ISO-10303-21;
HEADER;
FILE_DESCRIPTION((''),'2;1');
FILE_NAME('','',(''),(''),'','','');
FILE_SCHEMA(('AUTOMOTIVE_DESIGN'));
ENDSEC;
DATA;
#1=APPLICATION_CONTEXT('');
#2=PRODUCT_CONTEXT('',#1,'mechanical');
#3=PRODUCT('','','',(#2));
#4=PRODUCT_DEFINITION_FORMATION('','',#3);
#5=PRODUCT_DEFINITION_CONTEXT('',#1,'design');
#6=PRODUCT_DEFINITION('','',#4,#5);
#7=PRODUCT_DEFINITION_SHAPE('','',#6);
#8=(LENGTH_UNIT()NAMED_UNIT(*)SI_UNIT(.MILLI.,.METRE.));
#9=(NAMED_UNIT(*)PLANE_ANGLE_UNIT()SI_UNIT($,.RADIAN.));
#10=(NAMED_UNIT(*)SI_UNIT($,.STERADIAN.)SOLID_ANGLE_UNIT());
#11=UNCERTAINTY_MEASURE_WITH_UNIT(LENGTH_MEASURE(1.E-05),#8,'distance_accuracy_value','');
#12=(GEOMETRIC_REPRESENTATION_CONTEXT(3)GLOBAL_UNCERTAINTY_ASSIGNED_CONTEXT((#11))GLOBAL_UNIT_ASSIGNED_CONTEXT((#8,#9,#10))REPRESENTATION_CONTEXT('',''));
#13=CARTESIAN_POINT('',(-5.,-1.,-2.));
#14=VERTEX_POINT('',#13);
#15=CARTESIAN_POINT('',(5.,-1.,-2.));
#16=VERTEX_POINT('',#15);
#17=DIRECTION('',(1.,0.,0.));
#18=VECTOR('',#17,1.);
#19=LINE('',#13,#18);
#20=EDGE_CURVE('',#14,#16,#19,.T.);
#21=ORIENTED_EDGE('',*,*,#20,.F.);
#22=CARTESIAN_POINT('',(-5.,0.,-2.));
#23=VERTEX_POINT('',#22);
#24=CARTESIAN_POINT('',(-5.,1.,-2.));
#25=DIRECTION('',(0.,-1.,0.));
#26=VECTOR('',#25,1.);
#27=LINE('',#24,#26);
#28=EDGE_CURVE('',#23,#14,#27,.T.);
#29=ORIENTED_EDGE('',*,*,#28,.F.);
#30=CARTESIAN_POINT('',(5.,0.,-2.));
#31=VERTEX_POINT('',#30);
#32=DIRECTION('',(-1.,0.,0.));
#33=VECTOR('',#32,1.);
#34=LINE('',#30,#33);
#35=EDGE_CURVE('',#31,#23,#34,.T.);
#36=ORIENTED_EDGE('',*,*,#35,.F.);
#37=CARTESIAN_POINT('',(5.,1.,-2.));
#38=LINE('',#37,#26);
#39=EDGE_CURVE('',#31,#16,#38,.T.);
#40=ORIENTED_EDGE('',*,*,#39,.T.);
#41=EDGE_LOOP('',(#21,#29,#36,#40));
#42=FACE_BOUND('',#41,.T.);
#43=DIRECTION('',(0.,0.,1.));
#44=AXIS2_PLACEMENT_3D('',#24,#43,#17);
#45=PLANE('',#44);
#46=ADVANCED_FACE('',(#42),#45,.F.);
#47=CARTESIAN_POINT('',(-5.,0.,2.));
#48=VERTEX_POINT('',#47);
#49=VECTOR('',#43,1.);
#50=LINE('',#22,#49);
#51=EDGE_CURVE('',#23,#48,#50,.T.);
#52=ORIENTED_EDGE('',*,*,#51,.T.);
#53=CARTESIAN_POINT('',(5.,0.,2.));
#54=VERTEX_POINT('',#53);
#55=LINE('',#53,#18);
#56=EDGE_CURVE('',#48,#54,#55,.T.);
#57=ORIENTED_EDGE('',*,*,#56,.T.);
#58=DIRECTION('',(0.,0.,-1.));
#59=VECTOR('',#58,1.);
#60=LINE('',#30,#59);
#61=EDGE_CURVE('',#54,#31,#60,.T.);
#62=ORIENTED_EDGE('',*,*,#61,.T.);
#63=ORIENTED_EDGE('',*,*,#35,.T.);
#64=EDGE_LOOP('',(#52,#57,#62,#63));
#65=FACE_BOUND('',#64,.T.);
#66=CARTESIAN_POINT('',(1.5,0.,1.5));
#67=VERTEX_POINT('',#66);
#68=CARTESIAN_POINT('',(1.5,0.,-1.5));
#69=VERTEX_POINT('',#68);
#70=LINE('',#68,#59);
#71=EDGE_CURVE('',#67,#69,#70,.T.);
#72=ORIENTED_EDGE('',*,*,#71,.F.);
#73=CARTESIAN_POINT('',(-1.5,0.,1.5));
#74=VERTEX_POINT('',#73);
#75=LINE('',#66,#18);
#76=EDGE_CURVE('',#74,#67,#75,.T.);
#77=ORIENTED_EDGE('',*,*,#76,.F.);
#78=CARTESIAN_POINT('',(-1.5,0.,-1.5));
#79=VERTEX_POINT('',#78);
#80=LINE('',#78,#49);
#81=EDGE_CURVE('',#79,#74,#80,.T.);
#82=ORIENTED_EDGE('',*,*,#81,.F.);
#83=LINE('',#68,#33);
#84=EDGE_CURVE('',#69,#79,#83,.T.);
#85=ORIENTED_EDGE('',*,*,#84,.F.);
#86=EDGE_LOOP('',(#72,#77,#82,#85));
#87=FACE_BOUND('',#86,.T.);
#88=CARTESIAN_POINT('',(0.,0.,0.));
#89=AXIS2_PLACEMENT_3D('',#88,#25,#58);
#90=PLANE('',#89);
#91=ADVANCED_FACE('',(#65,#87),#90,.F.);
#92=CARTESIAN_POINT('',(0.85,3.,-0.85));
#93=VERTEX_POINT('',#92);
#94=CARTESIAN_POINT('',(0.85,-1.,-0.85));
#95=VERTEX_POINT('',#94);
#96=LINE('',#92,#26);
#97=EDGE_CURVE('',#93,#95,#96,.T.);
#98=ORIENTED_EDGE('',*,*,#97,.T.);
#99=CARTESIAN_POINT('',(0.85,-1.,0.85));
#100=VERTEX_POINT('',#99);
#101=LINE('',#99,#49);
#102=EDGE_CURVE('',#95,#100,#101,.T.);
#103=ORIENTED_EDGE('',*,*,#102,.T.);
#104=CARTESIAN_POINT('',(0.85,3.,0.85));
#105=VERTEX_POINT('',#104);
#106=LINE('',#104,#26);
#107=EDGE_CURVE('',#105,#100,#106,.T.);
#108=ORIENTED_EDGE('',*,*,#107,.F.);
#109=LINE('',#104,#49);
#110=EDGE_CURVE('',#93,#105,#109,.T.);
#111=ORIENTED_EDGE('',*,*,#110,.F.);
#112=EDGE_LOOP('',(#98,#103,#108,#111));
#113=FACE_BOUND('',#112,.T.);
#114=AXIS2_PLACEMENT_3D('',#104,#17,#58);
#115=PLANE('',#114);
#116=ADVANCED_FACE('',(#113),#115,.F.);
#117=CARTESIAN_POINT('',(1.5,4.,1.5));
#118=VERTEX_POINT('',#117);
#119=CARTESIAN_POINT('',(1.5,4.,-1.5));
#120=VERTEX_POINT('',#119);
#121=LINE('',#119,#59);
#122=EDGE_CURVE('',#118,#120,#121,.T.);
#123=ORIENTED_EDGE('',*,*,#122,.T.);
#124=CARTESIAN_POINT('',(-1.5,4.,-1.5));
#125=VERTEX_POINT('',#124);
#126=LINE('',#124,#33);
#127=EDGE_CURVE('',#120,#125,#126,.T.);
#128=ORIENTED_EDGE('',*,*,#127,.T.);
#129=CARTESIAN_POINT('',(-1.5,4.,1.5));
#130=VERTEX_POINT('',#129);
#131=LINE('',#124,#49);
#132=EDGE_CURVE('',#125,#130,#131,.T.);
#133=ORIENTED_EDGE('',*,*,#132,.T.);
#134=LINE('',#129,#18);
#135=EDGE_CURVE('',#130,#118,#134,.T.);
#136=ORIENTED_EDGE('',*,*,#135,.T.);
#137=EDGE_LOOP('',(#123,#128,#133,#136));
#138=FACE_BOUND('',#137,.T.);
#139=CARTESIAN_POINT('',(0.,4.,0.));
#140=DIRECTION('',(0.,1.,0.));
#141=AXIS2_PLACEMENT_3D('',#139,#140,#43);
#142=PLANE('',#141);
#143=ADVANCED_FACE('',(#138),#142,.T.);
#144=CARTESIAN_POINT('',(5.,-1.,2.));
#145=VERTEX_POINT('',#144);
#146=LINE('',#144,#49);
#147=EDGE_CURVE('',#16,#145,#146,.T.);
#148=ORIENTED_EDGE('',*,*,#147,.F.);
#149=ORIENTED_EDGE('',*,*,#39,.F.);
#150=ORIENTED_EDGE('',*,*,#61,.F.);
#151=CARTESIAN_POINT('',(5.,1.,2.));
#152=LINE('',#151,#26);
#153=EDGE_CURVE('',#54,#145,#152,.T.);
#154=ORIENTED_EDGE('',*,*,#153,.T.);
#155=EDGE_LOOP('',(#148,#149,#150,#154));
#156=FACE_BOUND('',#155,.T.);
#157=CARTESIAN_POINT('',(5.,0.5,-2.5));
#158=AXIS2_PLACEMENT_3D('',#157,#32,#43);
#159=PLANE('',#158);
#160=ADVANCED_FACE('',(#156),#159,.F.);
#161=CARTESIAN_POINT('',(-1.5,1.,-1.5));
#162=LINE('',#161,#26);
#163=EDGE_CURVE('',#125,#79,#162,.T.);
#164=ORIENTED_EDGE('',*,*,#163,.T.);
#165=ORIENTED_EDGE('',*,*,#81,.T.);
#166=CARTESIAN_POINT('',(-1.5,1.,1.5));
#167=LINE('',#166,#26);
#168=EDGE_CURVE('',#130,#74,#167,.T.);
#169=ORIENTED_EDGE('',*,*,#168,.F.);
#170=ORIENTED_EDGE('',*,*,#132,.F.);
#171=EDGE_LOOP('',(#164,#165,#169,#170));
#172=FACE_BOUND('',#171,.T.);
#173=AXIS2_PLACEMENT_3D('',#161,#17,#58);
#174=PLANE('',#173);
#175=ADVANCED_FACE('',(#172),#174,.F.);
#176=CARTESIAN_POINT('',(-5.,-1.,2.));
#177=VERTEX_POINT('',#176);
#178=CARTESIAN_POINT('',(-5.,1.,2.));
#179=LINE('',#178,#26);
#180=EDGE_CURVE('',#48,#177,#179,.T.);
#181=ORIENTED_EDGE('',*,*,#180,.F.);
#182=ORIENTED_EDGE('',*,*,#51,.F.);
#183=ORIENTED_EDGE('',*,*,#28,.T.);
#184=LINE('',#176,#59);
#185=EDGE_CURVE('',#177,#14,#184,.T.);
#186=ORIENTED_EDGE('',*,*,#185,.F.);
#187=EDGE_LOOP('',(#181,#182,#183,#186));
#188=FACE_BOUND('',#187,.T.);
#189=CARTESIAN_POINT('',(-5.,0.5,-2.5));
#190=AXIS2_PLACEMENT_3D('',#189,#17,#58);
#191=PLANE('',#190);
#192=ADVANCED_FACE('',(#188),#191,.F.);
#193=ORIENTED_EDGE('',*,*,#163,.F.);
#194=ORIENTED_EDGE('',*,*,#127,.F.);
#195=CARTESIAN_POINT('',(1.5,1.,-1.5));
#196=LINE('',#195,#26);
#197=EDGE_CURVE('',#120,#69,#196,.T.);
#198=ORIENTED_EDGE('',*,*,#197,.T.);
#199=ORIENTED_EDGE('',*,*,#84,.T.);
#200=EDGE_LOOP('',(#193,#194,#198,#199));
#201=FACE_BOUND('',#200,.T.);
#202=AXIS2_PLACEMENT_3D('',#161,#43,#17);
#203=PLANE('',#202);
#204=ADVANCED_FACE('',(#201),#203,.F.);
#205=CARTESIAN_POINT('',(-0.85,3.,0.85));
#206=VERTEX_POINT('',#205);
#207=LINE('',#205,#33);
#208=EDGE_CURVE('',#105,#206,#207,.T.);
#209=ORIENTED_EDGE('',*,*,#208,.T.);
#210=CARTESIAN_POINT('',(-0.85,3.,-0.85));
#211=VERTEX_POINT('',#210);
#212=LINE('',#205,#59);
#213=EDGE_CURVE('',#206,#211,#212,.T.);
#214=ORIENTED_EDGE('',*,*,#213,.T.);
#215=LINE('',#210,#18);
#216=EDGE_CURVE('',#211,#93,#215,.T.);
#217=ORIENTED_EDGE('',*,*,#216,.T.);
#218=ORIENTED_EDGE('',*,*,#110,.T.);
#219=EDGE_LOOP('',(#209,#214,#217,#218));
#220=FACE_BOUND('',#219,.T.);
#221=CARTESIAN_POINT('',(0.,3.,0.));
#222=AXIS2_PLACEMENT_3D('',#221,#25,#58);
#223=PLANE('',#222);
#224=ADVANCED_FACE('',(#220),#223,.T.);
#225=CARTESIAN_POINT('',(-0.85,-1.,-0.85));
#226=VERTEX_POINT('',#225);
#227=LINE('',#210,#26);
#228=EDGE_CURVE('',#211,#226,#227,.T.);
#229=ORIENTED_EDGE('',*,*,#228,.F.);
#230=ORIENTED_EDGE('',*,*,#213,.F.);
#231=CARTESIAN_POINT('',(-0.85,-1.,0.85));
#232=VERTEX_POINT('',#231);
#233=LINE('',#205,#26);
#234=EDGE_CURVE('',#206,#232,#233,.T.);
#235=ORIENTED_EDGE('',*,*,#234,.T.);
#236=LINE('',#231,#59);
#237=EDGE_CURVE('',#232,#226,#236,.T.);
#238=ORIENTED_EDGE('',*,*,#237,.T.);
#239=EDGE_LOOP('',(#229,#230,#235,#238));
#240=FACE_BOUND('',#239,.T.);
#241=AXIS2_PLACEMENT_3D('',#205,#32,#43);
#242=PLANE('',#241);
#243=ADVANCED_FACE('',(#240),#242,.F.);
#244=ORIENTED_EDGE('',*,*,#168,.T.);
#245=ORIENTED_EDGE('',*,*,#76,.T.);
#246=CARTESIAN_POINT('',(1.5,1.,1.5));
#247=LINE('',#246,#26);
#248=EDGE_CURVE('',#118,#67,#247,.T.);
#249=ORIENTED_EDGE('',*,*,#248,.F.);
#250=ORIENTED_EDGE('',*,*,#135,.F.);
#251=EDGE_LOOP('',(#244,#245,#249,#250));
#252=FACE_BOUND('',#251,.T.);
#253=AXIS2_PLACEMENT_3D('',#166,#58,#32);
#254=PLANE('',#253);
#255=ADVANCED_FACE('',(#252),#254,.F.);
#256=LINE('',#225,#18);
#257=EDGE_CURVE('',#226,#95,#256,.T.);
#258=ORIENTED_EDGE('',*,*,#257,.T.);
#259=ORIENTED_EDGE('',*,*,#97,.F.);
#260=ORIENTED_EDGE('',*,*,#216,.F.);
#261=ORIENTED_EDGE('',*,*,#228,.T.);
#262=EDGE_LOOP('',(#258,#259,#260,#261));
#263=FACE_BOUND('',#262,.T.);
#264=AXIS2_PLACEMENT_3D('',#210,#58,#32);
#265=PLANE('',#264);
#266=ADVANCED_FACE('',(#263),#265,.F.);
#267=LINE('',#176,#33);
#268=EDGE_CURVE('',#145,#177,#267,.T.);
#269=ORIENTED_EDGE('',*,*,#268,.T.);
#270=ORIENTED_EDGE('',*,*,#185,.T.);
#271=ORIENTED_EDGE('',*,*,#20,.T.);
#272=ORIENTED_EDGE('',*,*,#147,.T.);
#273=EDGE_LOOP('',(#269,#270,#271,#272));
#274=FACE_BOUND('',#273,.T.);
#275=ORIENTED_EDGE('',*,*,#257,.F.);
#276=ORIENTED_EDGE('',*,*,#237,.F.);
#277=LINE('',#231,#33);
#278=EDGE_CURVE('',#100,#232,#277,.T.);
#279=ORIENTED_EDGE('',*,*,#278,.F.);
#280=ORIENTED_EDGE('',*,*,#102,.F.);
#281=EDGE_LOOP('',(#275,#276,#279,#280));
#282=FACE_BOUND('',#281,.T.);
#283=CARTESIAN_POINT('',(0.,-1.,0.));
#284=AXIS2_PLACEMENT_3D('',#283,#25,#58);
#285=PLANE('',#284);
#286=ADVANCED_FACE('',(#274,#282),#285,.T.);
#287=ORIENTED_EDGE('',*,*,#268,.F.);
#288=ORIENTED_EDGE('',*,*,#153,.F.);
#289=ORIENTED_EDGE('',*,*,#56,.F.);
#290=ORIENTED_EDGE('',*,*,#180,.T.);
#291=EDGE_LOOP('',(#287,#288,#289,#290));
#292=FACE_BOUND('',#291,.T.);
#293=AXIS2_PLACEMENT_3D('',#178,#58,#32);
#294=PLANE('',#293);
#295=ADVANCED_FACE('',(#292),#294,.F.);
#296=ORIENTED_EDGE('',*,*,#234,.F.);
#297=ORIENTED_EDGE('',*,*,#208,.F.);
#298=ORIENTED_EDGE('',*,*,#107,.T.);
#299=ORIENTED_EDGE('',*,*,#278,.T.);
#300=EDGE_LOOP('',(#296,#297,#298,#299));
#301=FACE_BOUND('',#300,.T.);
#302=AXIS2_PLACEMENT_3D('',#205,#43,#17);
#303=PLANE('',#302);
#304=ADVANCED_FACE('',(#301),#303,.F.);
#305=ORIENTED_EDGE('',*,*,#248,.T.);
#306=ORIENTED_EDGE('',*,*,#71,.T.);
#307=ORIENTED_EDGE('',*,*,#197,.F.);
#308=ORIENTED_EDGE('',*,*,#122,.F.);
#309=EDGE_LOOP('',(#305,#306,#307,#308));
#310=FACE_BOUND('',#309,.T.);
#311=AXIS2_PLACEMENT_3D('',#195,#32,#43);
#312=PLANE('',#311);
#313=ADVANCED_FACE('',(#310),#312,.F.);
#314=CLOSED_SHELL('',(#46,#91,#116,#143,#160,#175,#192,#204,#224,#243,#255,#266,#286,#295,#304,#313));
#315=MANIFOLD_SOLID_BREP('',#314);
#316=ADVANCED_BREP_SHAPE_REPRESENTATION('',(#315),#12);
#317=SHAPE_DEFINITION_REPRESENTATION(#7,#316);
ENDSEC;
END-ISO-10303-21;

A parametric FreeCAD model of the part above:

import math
import FreeCAD as App
import Part
import Sketcher

V = App.Vector
Q = App.Units.Quantity

doc = App.newDocument("Part")
body = doc.addObject("PartDesign::Body", "Body")

sketch1 = body.newObject("Sketcher::SketchObject", "Sketch")
sketch1.AttachmentSupport = (doc.getObject("XZ_Plane"), [""])
sketch1.MapMode = "FlatFace"
sketch1.addGeometry([
    Part.LineSegment(V(-5, -2, 0), V(-5, 2, 0)),
    Part.LineSegment(V(-5, 2, 0), V(5, 2, 0)),
    Part.LineSegment(V(5, 2, 0), V(5, -2, 0)),
    Part.LineSegment(V(5, -2, 0), V(-5, -2, 0)),
], False)
sketch1.addConstraint([
    Sketcher.Constraint("Coincident", 0, 2, 1, 1),
    Sketcher.Constraint("Coincident", 1, 2, 2, 1),
    Sketcher.Constraint("Coincident", 2, 2, 3, 1),
    Sketcher.Constraint("Coincident", 3, 2, 0, 1),
    Sketcher.Constraint("Vertical", 0),
    Sketcher.Constraint("Horizontal", 1),
    Sketcher.Constraint("Vertical", 2),
    Sketcher.Constraint("Horizontal", 3),
    Sketcher.Constraint("Symmetric", 0, 2, 2, 2, -1, 1),
    Sketcher.Constraint("DistanceX", 1, 1, 1, 2, Q("10 mm")),
    Sketcher.Constraint("DistanceY", 0, 1, 0, 2, Q("5 mm")),
])
pad1 = body.newObject("PartDesign::Pad", "Pad")
pad1.Profile = sketch1
pad1.Length = 0.5
pad1.Reversed = True

sketch2 = body.newObject("Sketcher::SketchObject", "Sketch001")
sketch2.AttachmentSupport = (doc.getObject("XZ_Plane"), [""])
sketch2.MapMode = "FlatFace"
sketch2.AttachmentOffset = App.Placement(V(0, 0, -0.5), App.Rotation())
sketch2.addGeometry([
    Part.LineSegment(V(-1.5, -1.5, 0), V(-1.5, 1.5, 0)),
    Part.LineSegment(V(-1.5, 1.5, 0), V(1.5, 1.5, 0)),
    Part.LineSegment(V(1.5, 1.5, 0), V(1.5, -1.5, 0)),
    Part.LineSegment(V(1.5, -1.5, 0), V(-1.5, -1.5, 0)),
], False)
sketch2.addConstraint([
    Sketcher.Constraint("Coincident", 0, 2, 1, 1),
    Sketcher.Constraint("Coincident", 1, 2, 2, 1),
    Sketcher.Constraint("Coincident", 2, 2, 3, 1),
    Sketcher.Constraint("Coincident", 3, 2, 0, 1),
    Sketcher.Constraint("Vertical", 0),
    Sketcher.Constraint("Horizontal", 1),
    Sketcher.Constraint("Vertical", 2),
    Sketcher.Constraint("Horizontal", 3),
    Sketcher.Constraint("Symmetric", 0, 2, 2, 2, -1, 1),
    Sketcher.Constraint("Equal", 3, 0),
    Sketcher.Constraint("DistanceX", 1, 1, 1, 2, Q("3 mm")),
])
pad2 = body.newObject("PartDesign::Pad", "Pad001")
pad2.Profile = sketch2
pad2.Length = 0.5
pad2.Reversed = True

sketch3 = body.newObject("Sketcher::SketchObject", "Sketch002")
sketch3.AttachmentSupport = (doc.getObject("XZ_Plane"), [""])
sketch3.MapMode = "FlatFace"
sketch3.AttachmentOffset = App.Placement(V(0, 0, -1), App.Rotation())
sketch3.addGeometry([
    Part.LineSegment(V(-5, -2, 0), V(-5, 2, 0)),
    Part.LineSegment(V(-5, 2, 0), V(5, 2, 0)),
    Part.LineSegment(V(5, 2, 0), V(5, -2, 0)),
    Part.LineSegment(V(5, -2, 0), V(-5, -2, 0)),
], False)
sketch3.addConstraint([
    Sketcher.Constraint("Coincident", 0, 2, 1, 1),
    Sketcher.Constraint("Coincident", 1, 2, 2, 1),
    Sketcher.Constraint("Coincident", 2, 2, 3, 1),
    Sketcher.Constraint("Coincident", 3, 2, 0, 1),
    Sketcher.Constraint("Vertical", 0),
    Sketcher.Constraint("Horizontal", 1),
    Sketcher.Constraint("Vertical", 2),
    Sketcher.Constraint("Horizontal", 3),
    Sketcher.Constraint("Symmetric", 0, 2, 2, 2, -1, 1),
    Sketcher.Constraint("DistanceX", 1, 1, 1, 2, Q("10 mm")),
    Sketcher.Constraint("DistanceY", 0, 1, 0, 2, Q("5 mm")),
])
pad3 = body.newObject("PartDesign::Pad", "Pad002")
pad3.Profile = sketch3
pad3.Length = 0.5
pad3.Reversed = True

sketch4 = body.newObject("Sketcher::SketchObject", "Sketch003")
sketch4.AttachmentSupport = (doc.getObject("XY_Plane"), [""])
sketch4.MapMode = "FlatFace"
sketch4.AttachmentOffset = App.Placement(V(0, 0, 2.5), App.Rotation())
sketch4.addGeometry([
    Part.LineSegment(V(-5, 2, 0), V(5, 2, 0)),
    Part.ArcOfCircle(Part.Circle(V(0, -10, 0), V(0, 0, 1), 13), math.radians(67), math.radians(113)),
], False)
sketch4.addConstraint([
    Sketcher.Constraint("Coincident", 0, 1, 1, 2),
    Sketcher.Constraint("Coincident", 1, 1, 0, 2),
    Sketcher.Constraint("Horizontal", 0),
    Sketcher.Constraint("PointOnObject", 1, 3, -2),
    Sketcher.Constraint("Radius", 1, Q("13 mm")),
    Sketcher.Constraint("DistanceX", 0, 1, 0, 2, Q("10 mm")),
    Sketcher.Constraint("DistanceY", 1, 3, -1, 1, Q("10.5 mm")),
])
pad4 = body.newObject("PartDesign::Pad", "Pad003")
pad4.Profile = sketch4
pad4.Length = 5
pad4.Reversed = True

sketch5 = body.newObject("Sketcher::SketchObject", "Sketch004")
sketch5.AttachmentSupport = (doc.getObject("XY_Plane"), [""])
sketch5.MapMode = "FlatFace"
sketch5.AttachmentOffset = App.Placement(V(0, 0, 2.5), App.Rotation())
sketch5.addGeometry([
    Part.LineSegment(V(-4.2, 2.8, 0), V(-4.8, 2.8, 0)),
    Part.LineSegment(V(-4.8, 2.8, 0), V(-4.8, 1.4, 0)),
    Part.ArcOfCircle(Part.Circle(V(0, -10.7, 0), V(0, 0, 1), 13), math.radians(109.08), math.radians(111.43)),
    Part.LineSegment(V(-4.2, 1.5, 0), V(-4.2, 2.8, 0)),
    Part.LineSegment(V(-3.8, 2.8, 0), V(-3.8, 1.7, 0)),
    Part.ArcOfCircle(Part.Circle(V(0, -10.8, 0), V(0, 0, 1), 13), math.radians(104.48), math.radians(106.77)),
    Part.LineSegment(V(-3.2, 1.8, 0), V(-3.2, 2.8, 0)),
    Part.LineSegment(V(-3.2, 2.8, 0), V(-3.8, 2.8, 0)),
    Part.LineSegment(V(-2.8, 2.8, 0), V(-2.8, 2, 0)),
    Part.ArcOfCircle(Part.Circle(V(0, -10.7, 0), V(0, 0, 1), 13), math.radians(99.97), math.radians(102.21)),
    Part.LineSegment(V(-2.2, 2.1, 0), V(-2.2, 2.8, 0)),
    Part.LineSegment(V(-2.2, 2.8, 0), V(-2.8, 2.8, 0)),
    Part.LineSegment(V(-1.8, 2.8, 0), V(-1.8, 2.1, 0)),
    Part.ArcOfCircle(Part.Circle(V(0, -10.8, 0), V(0, 0, 1), 13), math.radians(95.52), math.radians(97.74)),
    Part.LineSegment(V(-1.2, 2.2, 0), V(-1.2, 2.8, 0)),
    Part.LineSegment(V(-1.2, 2.8, 0), V(-1.8, 2.8, 0)),
    Part.LineSegment(V(-0.8, 2.8, 0), V(-0.8, 2.2, 0)),
    Part.ArcOfCircle(Part.Circle(V(0, -10.7, 0), V(0, 0, 1), 13), math.radians(91.1), math.radians(93.31)),
    Part.LineSegment(V(-0.2, 2.2, 0), V(-0.2, 2.8, 0)),
    Part.LineSegment(V(-0.2, 2.8, 0), V(-0.8, 2.8, 0)),
    Part.LineSegment(V(0.2, 2.8, 0), V(0.2, 2.2, 0)),
    Part.ArcOfCircle(Part.Circle(V(0, -10.7, 0), V(0, 0, 1), 13), math.radians(86.69), math.radians(88.9)),
    Part.LineSegment(V(0.8, 2.2, 0), V(0.8, 2.8, 0)),
    Part.LineSegment(V(0.8, 2.8, 0), V(0.2, 2.8, 0)),
    Part.LineSegment(V(1.2, 2.8, 0), V(1.2, 2.2, 0)),
    Part.ArcOfCircle(Part.Circle(V(0, -10.8, 0), V(0, 0, 1), 13), math.radians(82.26), math.radians(84.48)),
    Part.LineSegment(V(1.8, 2.1, 0), V(1.8, 2.8, 0)),
    Part.LineSegment(V(1.8, 2.8, 0), V(1.2, 2.8, 0)),
    Part.LineSegment(V(2.2, 2.8, 0), V(2.2, 2.1, 0)),
    Part.ArcOfCircle(Part.Circle(V(0, -10.7, 0), V(0, 0, 1), 13), math.radians(77.79), math.radians(80.03)),
    Part.LineSegment(V(2.8, 2, 0), V(2.8, 2.8, 0)),
    Part.LineSegment(V(2.8, 2.8, 0), V(2.2, 2.8, 0)),
    Part.LineSegment(V(3.2, 2.8, 0), V(3.2, 1.8, 0)),
    Part.ArcOfCircle(Part.Circle(V(0, -10.8, 0), V(0, 0, 1), 13), math.radians(73.23), math.radians(75.52)),
    Part.LineSegment(V(3.8, 1.7, 0), V(3.8, 2.8, 0)),
    Part.LineSegment(V(3.8, 2.8, 0), V(3.2, 2.8, 0)),
    Part.LineSegment(V(4.2, 2.8, 0), V(4.2, 1.5, 0)),
    Part.ArcOfCircle(Part.Circle(V(0, -10.7, 0), V(0, 0, 1), 13), math.radians(68.57), math.radians(70.92)),
    Part.LineSegment(V(4.8, 1.4, 0), V(4.8, 2.8, 0)),
    Part.LineSegment(V(4.8, 2.8, 0), V(4.2, 2.8, 0)),
], False)
sketch5.addConstraint([
    Sketcher.Constraint("Coincident", 0, 2, 1, 1),
    Sketcher.Constraint("Coincident", 1, 2, 2, 2),
    Sketcher.Constraint("Coincident", 2, 1, 3, 1),
    Sketcher.Constraint("Coincident", 3, 2, 0, 1),
    Sketcher.Constraint("Coincident", 4, 2, 5, 2),
    Sketcher.Constraint("Coincident", 5, 1, 6, 1),
    Sketcher.Constraint("Coincident", 6, 2, 7, 1),
    Sketcher.Constraint("Coincident", 7, 2, 4, 1),
    Sketcher.Constraint("Coincident", 8, 2, 9, 2),
    Sketcher.Constraint("Coincident", 9, 1, 10, 1),
    Sketcher.Constraint("Coincident", 10, 2, 11, 1),
    Sketcher.Constraint("Coincident", 11, 2, 8, 1),
    Sketcher.Constraint("Coincident", 12, 2, 13, 2),
    Sketcher.Constraint("Coincident", 13, 1, 14, 1),
    Sketcher.Constraint("Coincident", 14, 2, 15, 1),
    Sketcher.Constraint("Coincident", 15, 2, 12, 1),
    Sketcher.Constraint("Coincident", 16, 2, 17, 2),
    Sketcher.Constraint("Coincident", 17, 1, 18, 1),
    Sketcher.Constraint("Coincident", 18, 2, 19, 1),
    Sketcher.Constraint("Coincident", 19, 2, 16, 1),
    Sketcher.Constraint("Coincident", 20, 2, 21, 2),
    Sketcher.Constraint("Coincident", 21, 1, 22, 1),
    Sketcher.Constraint("Coincident", 22, 2, 23, 1),
    Sketcher.Constraint("Coincident", 23, 2, 20, 1),
    Sketcher.Constraint("Coincident", 24, 2, 25, 2),
    Sketcher.Constraint("Coincident", 25, 1, 26, 1),
    Sketcher.Constraint("Coincident", 26, 2, 27, 1),
    Sketcher.Constraint("Coincident", 27, 2, 24, 1),
    Sketcher.Constraint("Coincident", 28, 2, 29, 2),
    Sketcher.Constraint("Coincident", 29, 1, 30, 1),
    Sketcher.Constraint("Coincident", 30, 2, 31, 1),
    Sketcher.Constraint("Coincident", 31, 2, 28, 1),
    Sketcher.Constraint("Coincident", 32, 2, 33, 2),
    Sketcher.Constraint("Coincident", 33, 1, 34, 1),
    Sketcher.Constraint("Coincident", 34, 2, 35, 1),
    Sketcher.Constraint("Coincident", 35, 2, 32, 1),
    Sketcher.Constraint("Coincident", 36, 2, 37, 2),
    Sketcher.Constraint("Coincident", 37, 1, 38, 1),
    Sketcher.Constraint("Coincident", 38, 2, 39, 1),
    Sketcher.Constraint("Coincident", 39, 2, 36, 1),
    Sketcher.Constraint("Horizontal", 0),
    Sketcher.Constraint("Vertical", 1),
    Sketcher.Constraint("Vertical", 3),
    Sketcher.Constraint("Vertical", 4),
    Sketcher.Constraint("Vertical", 6),
    Sketcher.Constraint("Horizontal", 7),
    Sketcher.Constraint("Vertical", 8),
    Sketcher.Constraint("Vertical", 10),
    Sketcher.Constraint("Horizontal", 11),
    Sketcher.Constraint("Vertical", 12),
    Sketcher.Constraint("Vertical", 14),
    Sketcher.Constraint("Horizontal", 15),
    Sketcher.Constraint("Vertical", 16),
    Sketcher.Constraint("Vertical", 18),
    Sketcher.Constraint("Horizontal", 19),
    Sketcher.Constraint("Vertical", 20),
    Sketcher.Constraint("Vertical", 22),
    Sketcher.Constraint("Horizontal", 23),
    Sketcher.Constraint("Vertical", 24),
    Sketcher.Constraint("Vertical", 26),
    Sketcher.Constraint("Horizontal", 27),
    Sketcher.Constraint("Vertical", 28),
    Sketcher.Constraint("Vertical", 30),
    Sketcher.Constraint("Horizontal", 31),
    Sketcher.Constraint("Vertical", 32),
    Sketcher.Constraint("Vertical", 34),
    Sketcher.Constraint("Horizontal", 35),
    Sketcher.Constraint("Vertical", 36),
    Sketcher.Constraint("Vertical", 38),
    Sketcher.Constraint("Horizontal", 39),
    Sketcher.Constraint("Coincident", 5, 3, 2, 3),
    Sketcher.Constraint("Coincident", 9, 3, 2, 3),
    Sketcher.Constraint("Coincident", 13, 3, 2, 3),
    Sketcher.Constraint("Coincident", 17, 3, 2, 3),
    Sketcher.Constraint("Coincident", 21, 3, 2, 3),
    Sketcher.Constraint("Coincident", 25, 3, 2, 3),
    Sketcher.Constraint("Coincident", 29, 3, 2, 3),
    Sketcher.Constraint("Coincident", 33, 3, 2, 3),
    Sketcher.Constraint("Coincident", 37, 3, 2, 3),
    Sketcher.Constraint("Equal", 5, 9),
    Sketcher.Constraint("Equal", 9, 13),
    Sketcher.Constraint("Equal", 9, 17),
    Sketcher.Constraint("Equal", 17, 21),
    Sketcher.Constraint("Equal", 13, 25),
    Sketcher.Constraint("Equal", 25, 29),
    Sketcher.Constraint("Equal", 29, 33),
    Sketcher.Constraint("Equal", 21, 37),
    Sketcher.Constraint("Symmetric", 17, 1, 20, 2, -2),
    Sketcher.Constraint("Symmetric", 19, 2, 22, 2, -2),
    Sketcher.Constraint("Symmetric", 15, 2, 26, 2, -2),
    Sketcher.Constraint("Symmetric", 11, 2, 30, 2, -2),
    Sketcher.Constraint("Symmetric", 7, 2, 34, 2, -2),
    Sketcher.Constraint("Symmetric", 2, 1, 36, 2, -2),
    Sketcher.Constraint("Symmetric", 0, 2, 38, 2, -2),
    Sketcher.Constraint("Horizontal", 3, 2, 6, 2),
    Sketcher.Constraint("Horizontal", 7, 2, 10, 2),
    Sketcher.Constraint("Horizontal", 11, 2, 14, 2),
    Sketcher.Constraint("Horizontal", 15, 2, 18, 2),
    Sketcher.Constraint("Horizontal", 13, 1, 24, 2),
    Sketcher.Constraint("Horizontal", 9, 1, 28, 2),
    Sketcher.Constraint("Horizontal", 5, 1, 32, 2),
    Sketcher.Constraint("Equal", 0, 7),
    Sketcher.Constraint("Equal", 7, 11),
    Sketcher.Constraint("Equal", 11, 15),
    Sketcher.Constraint("Equal", 15, 19),
    Sketcher.Constraint("Radius", 5, Q("13.000001 mm")),
    Sketcher.Constraint("DistanceX", 0, 2, 0, 1, Q("0.5 mm")),
    Sketcher.Constraint("DistanceX", 1, 2, 4, 2, Q("1 mm")),
    Sketcher.Constraint("DistanceX", 4, 2, 8, 2, Q("1 mm")),
    Sketcher.Constraint("DistanceX", 8, 2, 12, 2, Q("1 mm")),
    Sketcher.Constraint("DistanceX", 12, 2, 16, 2, Q("1 mm")),
    Sketcher.Constraint("DistanceX", 16, 2, 20, 2, Q("1 mm")),
    Sketcher.Constraint("DistanceY", 9, 3, 0, 2, Q("13.5 mm")),
    Sketcher.Constraint("DistanceY", 5, 3, -1, 1, Q("10.750001 mm")),
])
pocket1 = body.newObject("PartDesign::Pocket", "Pocket")
pocket1.Profile = sketch5
pocket1.Length = 5

sketch6 = body.newObject("Sketcher::SketchObject", "Sketch005")
sketch6.AttachmentSupport = (doc.getObject("XZ_Plane"), [""])
sketch6.MapMode = "FlatFace"
sketch6.addGeometry([
    Part.LineSegment(V(-0.8, 0.8, 0), V(-0.8, -0.8, 0)),
    Part.LineSegment(V(-0.8, -0.8, 0), V(0.8, -0.8, 0)),
    Part.LineSegment(V(0.8, -0.8, 0), V(0.8, 0.8, 0)),
    Part.LineSegment(V(0.8, 0.8, 0), V(-0.8, 0.8, 0)),
], False)
sketch6.addConstraint([
    Sketcher.Constraint("Coincident", 0, 2, 1, 1),
    Sketcher.Constraint("Coincident", 1, 2, 2, 1),
    Sketcher.Constraint("Coincident", 2, 2, 3, 1),
    Sketcher.Constraint("Coincident", 3, 2, 0, 1),
    Sketcher.Constraint("Vertical", 0),
    Sketcher.Constraint("Horizontal", 1),
    Sketcher.Constraint("Vertical", 2),
    Sketcher.Constraint("Horizontal", 3),
    Sketcher.Constraint("Symmetric", 0, 2, 2, 2, -1, 1),
    Sketcher.Constraint("Equal", 3, 0),
    Sketcher.Constraint("DistanceX", 1, 1, 1, 2, Q("1.6 mm")),
])
pocket2 = body.newObject("PartDesign::Pocket", "Pocket001")
pocket2.Profile = sketch6
pocket2.Length = 1.5

sketch7 = body.newObject("Sketcher::SketchObject", "Sketch006")
sketch7.AttachmentSupport = (doc.getObject("XZ_Plane"), [""])
sketch7.MapMode = "FlatFace"
sketch7.addGeometry([
    Part.LineSegment(V(-5, 2.5, 0), V(-5, 2, 0)),
    Part.LineSegment(V(-5, 2, 0), V(5, 2, 0)),
    Part.LineSegment(V(5, 2, 0), V(5, 2.5, 0)),
    Part.LineSegment(V(5, 2.5, 0), V(-5, 2.5, 0)),
    Part.LineSegment(V(-5, -2, 0), V(-5, -2.5, 0)),
    Part.LineSegment(V(-5, -2.5, 0), V(5, -2.5, 0)),
    Part.LineSegment(V(5, -2.5, 0), V(5, -2, 0)),
    Part.LineSegment(V(5, -2, 0), V(-5, -2, 0)),
], False)
sketch7.addConstraint([
    Sketcher.Constraint("Coincident", 0, 2, 1, 1),
    Sketcher.Constraint("Coincident", 1, 2, 2, 1),
    Sketcher.Constraint("Coincident", 2, 2, 3, 1),
    Sketcher.Constraint("Coincident", 3, 2, 0, 1),
    Sketcher.Constraint("Coincident", 4, 2, 5, 1),
    Sketcher.Constraint("Coincident", 5, 2, 6, 1),
    Sketcher.Constraint("Coincident", 6, 2, 7, 1),
    Sketcher.Constraint("Coincident", 7, 2, 4, 1),
    Sketcher.Constraint("Vertical", 0),
    Sketcher.Constraint("Horizontal", 1),
    Sketcher.Constraint("Vertical", 2),
    Sketcher.Constraint("Horizontal", 3),
    Sketcher.Constraint("Vertical", 4),
    Sketcher.Constraint("Horizontal", 5),
    Sketcher.Constraint("Vertical", 6),
    Sketcher.Constraint("Horizontal", 7),
    Sketcher.Constraint("Symmetric", 2, 2, 4, 2, -1, 1),
    Sketcher.Constraint("Symmetric", 0, 2, 6, 2, -1, 1),
    Sketcher.Constraint("Vertical", 3, 2, 4, 2),
    Sketcher.Constraint("DistanceX", 1, 1, 1, 2, Q("10 mm")),
    Sketcher.Constraint("DistanceY", 0, 2, 0, 1, Q("0.5 mm")),
    Sketcher.Constraint("DistanceY", -1, 1, 0, 2, Q("2 mm")),
])
pocket3 = body.newObject("PartDesign::Pocket", "Pocket002")
pocket3.Profile = sketch7
pocket3.Length = 1

sketch8 = body.newObject("Sketcher::SketchObject", "Sketch007")
sketch8.AttachmentSupport = (doc.getObject("XZ_Plane"), [""])
sketch8.MapMode = "FlatFace"
sketch8.addGeometry([
    Part.LineSegment(V(-5, 2, 0), V(-5, -2, 0)),
    Part.LineSegment(V(-5, -2, 0), V(5, -2, 0)),
    Part.LineSegment(V(5, -2, 0), V(5, 2, 0)),
    Part.LineSegment(V(5, 2, 0), V(-5, 2, 0)),
], False)
sketch8.addConstraint([
    Sketcher.Constraint("Coincident", 0, 2, 1, 1),
    Sketcher.Constraint("Coincident", 1, 2, 2, 1),
    Sketcher.Constraint("Coincident", 2, 2, 3, 1),
    Sketcher.Constraint("Coincident", 3, 2, 0, 1),
    Sketcher.Constraint("Vertical", 0),
    Sketcher.Constraint("Horizontal", 1),
    Sketcher.Constraint("Vertical", 2),
    Sketcher.Constraint("Horizontal", 3),
    Sketcher.Constraint("Symmetric", 0, 2, 2, 2, -1, 1),
    Sketcher.Constraint("DistanceX", 1, 1, 1, 2, Q("10 mm")),
    Sketcher.Constraint("DistanceY", 0, 2, 0, 1, Q("4 mm")),
])
pad5 = body.newObject("PartDesign::Pad", "Pad004")
pad5.Profile = sketch8
pad5.Length = 1

sketch9 = body.newObject("Sketcher::SketchObject", "Sketch008")
sketch9.AttachmentSupport = (doc.getObject("XZ_Plane"), [""])
sketch9.MapMode = "FlatFace"
sketch9.AttachmentOffset = App.Placement(V(0, 0, -0.5), App.Rotation())
sketch9.addGeometry([
    Part.LineSegment(V(-5, -2, 0), V(-5, 2, 0)),
    Part.LineSegment(V(-5, 2, 0), V(5, 2, 0)),
    Part.LineSegment(V(5, 2, 0), V(5, -2, 0)),
    Part.LineSegment(V(5, -2, 0), V(-5, -2, 0)),
    Part.LineSegment(V(1.5, 1.5, 0), V(-1.5, 1.5, 0)),
    Part.LineSegment(V(-1.5, 1.5, 0), V(-1.5, -1.5, 0)),
    Part.LineSegment(V(-1.5, -1.5, 0), V(1.5, -1.5, 0)),
    Part.LineSegment(V(1.5, -1.5, 0), V(1.5, 1.5, 0)),
], False)
sketch9.addConstraint([
    Sketcher.Constraint("Coincident", 0, 2, 1, 1),
    Sketcher.Constraint("Coincident", 1, 2, 2, 1),
    Sketcher.Constraint("Coincident", 2, 2, 3, 1),
    Sketcher.Constraint("Coincident", 3, 2, 0, 1),
    Sketcher.Constraint("Coincident", 4, 2, 5, 1),
    Sketcher.Constraint("Coincident", 5, 2, 6, 1),
    Sketcher.Constraint("Coincident", 6, 2, 7, 1),
    Sketcher.Constraint("Coincident", 7, 2, 4, 1),
    Sketcher.Constraint("Vertical", 0),
    Sketcher.Constraint("Horizontal", 1),
    Sketcher.Constraint("Vertical", 2),
    Sketcher.Constraint("Horizontal", 3),
    Sketcher.Constraint("Horizontal", 4),
    Sketcher.Constraint("Vertical", 5),
    Sketcher.Constraint("Horizontal", 6),
    Sketcher.Constraint("Vertical", 7),
    Sketcher.Constraint("Symmetric", 0, 2, 2, 2, -1, 1),
    Sketcher.Constraint("Symmetric", 4, 2, 6, 2, -1, 1),
    Sketcher.Constraint("Equal", 6, 5),
    Sketcher.Constraint("DistanceX", 1, 1, 1, 2, Q("10 mm")),
    Sketcher.Constraint("DistanceX", 4, 2, 4, 1, Q("3 mm")),
    Sketcher.Constraint("DistanceY", 0, 1, 0, 2, Q("4 mm")),
])
pocket4 = body.newObject("PartDesign::Pocket", "Pocket003")
pocket4.Profile = sketch9
pocket4.Length = 0.5
pocket4.Reversed = True

sketch10 = body.newObject("Sketcher::SketchObject", "Sketch009")
sketch10.AttachmentSupport = (doc.getObject("XZ_Plane"), [""])
sketch10.MapMode = "FlatFace"
sketch10.addGeometry([
    Part.LineSegment(V(-0.8, 0.8, 0), V(-0.8, -0.8, 0)),
    Part.LineSegment(V(-0.8, -0.8, 0), V(0.8, -0.8, 0)),
    Part.LineSegment(V(0.8, -0.8, 0), V(0.8, 0.8, 0)),
    Part.LineSegment(V(0.8, 0.8, 0), V(-0.8, 0.8, 0)),
], False)
sketch10.addConstraint([
    Sketcher.Constraint("Coincident", 0, 2, 1, 1),
    Sketcher.Constraint("Coincident", 1, 2, 2, 1),
    Sketcher.Constraint("Coincident", 2, 2, 3, 1),
    Sketcher.Constraint("Coincident", 3, 2, 0, 1),
    Sketcher.Constraint("Vertical", 0),
    Sketcher.Constraint("Horizontal", 1),
    Sketcher.Constraint("Vertical", 2),
    Sketcher.Constraint("Horizontal", 3),
    Sketcher.Constraint("Symmetric", 0, 2, 2, 2, -1, 1),
    Sketcher.Constraint("Equal", 3, 0),
    Sketcher.Constraint("DistanceX", 1, 1, 1, 2, Q("1.6 mm")),
])
pocket5 = body.newObject("PartDesign::Pocket", "Pocket004")
pocket5.Profile = sketch10
pocket5.Type = "UpToFirst"
pocket5.Reversed = True

sketch11 = body.newObject("Sketcher::SketchObject", "Sketch010")
sketch11.AttachmentSupport = (doc.getObject("XZ_Plane"), [""])
sketch11.MapMode = "FlatFace"
sketch11.AttachmentOffset = App.Placement(V(0, 0, -1), App.Rotation())
sketch11.addGeometry([
    Part.LineSegment(V(-5, 2, 0), V(-5, -2, 0)),
    Part.LineSegment(V(-5, -2, 0), V(5, -2, 0)),
    Part.LineSegment(V(5, -2, 0), V(5, 2, 0)),
    Part.LineSegment(V(5, 2, 0), V(-5, 2, 0)),
], False)
sketch11.addConstraint([
    Sketcher.Constraint("Coincident", 0, 2, 1, 1),
    Sketcher.Constraint("Coincident", 1, 2, 2, 1),
    Sketcher.Constraint("Coincident", 2, 2, 3, 1),
    Sketcher.Constraint("Coincident", 3, 2, 0, 1),
    Sketcher.Constraint("Vertical", 0),
    Sketcher.Constraint("Horizontal", 1),
    Sketcher.Constraint("Vertical", 2),
    Sketcher.Constraint("Horizontal", 3),
    Sketcher.Constraint("Symmetric", 0, 2, 2, 2, -1, 1),
    Sketcher.Constraint("DistanceX", 1, 1, 1, 2, Q("10 mm")),
    Sketcher.Constraint("DistanceY", 0, 2, 0, 1, Q("5 mm")),
])
pocket6 = body.newObject("PartDesign::Pocket", "Pocket005")
pocket6.Profile = sketch11
pocket6.Type = "ThroughAll"

sketch12 = body.newObject("Sketcher::SketchObject", "Sketch011")
sketch12.AttachmentSupport = (doc.getObject("XZ_Plane"), [""])
sketch12.MapMode = "FlatFace"
sketch12.AttachmentOffset = App.Placement(V(0, 0, -1), App.Rotation())
sketch12.addGeometry([
    Part.LineSegment(V(-1.5, -1.5, 0), V(-1.5, 1.5, 0)),
    Part.LineSegment(V(-1.5, 1.5, 0), V(1.5, 1.5, 0)),
    Part.LineSegment(V(1.5, 1.5, 0), V(1.5, -1.5, 0)),
    Part.LineSegment(V(1.5, -1.5, 0), V(-1.5, -1.5, 0)),
], False)
sketch12.addConstraint([
    Sketcher.Constraint("Coincident", 0, 2, 1, 1),
    Sketcher.Constraint("Coincident", 1, 2, 2, 1),
    Sketcher.Constraint("Coincident", 2, 2, 3, 1),
    Sketcher.Constraint("Coincident", 3, 2, 0, 1),
    Sketcher.Constraint("Vertical", 0),
    Sketcher.Constraint("Horizontal", 1),
    Sketcher.Constraint("Vertical", 2),
    Sketcher.Constraint("Horizontal", 3),
    Sketcher.Constraint("Symmetric", 0, 2, 2, 2, -1, 1),
    Sketcher.Constraint("Equal", 3, 0),
    Sketcher.Constraint("DistanceX", 1, 1, 1, 2, Q("3 mm")),
])
pad6 = body.newObject("PartDesign::Pad", "Pad005")
pad6.Profile = sketch12
pad6.Length = 3
pad6.Reversed = True

sketch13 = body.newObject("Sketcher::SketchObject", "Sketch012")
sketch13.AttachmentSupport = (doc.getObject("XZ_Plane"), [""])
sketch13.MapMode = "FlatFace"
sketch13.AttachmentOffset = App.Placement(V(0, 0, 1), App.Rotation())
sketch13.addGeometry([
    Part.LineSegment(V(-0.8, 0.8, 0), V(-0.8, -0.8, 0)),
    Part.LineSegment(V(-0.8, -0.8, 0), V(0.8, -0.8, 0)),
    Part.LineSegment(V(0.8, -0.8, 0), V(0.8, 0.8, 0)),
    Part.LineSegment(V(0.8, 0.8, 0), V(-0.8, 0.8, 0)),
], False)
sketch13.addConstraint([
    Sketcher.Constraint("Coincident", 0, 2, 1, 1),
    Sketcher.Constraint("Coincident", 1, 2, 2, 1),
    Sketcher.Constraint("Coincident", 2, 2, 3, 1),
    Sketcher.Constraint("Coincident", 3, 2, 0, 1),
    Sketcher.Constraint("Vertical", 0),
    Sketcher.Constraint("Horizontal", 1),
    Sketcher.Constraint("Vertical", 2),
    Sketcher.Constraint("Horizontal", 3),
    Sketcher.Constraint("Symmetric", 0, 2, 2, 2, -1, 1),
    Sketcher.Constraint("Equal", 3, 0),
    Sketcher.Constraint("DistanceX", 1, 1, 1, 2, Q("1.7 mm")),
])
pocket7 = body.newObject("PartDesign::Pocket", "Pocket006")
pocket7.Profile = sketch13
pocket7.Length = 4

doc.recompute()
